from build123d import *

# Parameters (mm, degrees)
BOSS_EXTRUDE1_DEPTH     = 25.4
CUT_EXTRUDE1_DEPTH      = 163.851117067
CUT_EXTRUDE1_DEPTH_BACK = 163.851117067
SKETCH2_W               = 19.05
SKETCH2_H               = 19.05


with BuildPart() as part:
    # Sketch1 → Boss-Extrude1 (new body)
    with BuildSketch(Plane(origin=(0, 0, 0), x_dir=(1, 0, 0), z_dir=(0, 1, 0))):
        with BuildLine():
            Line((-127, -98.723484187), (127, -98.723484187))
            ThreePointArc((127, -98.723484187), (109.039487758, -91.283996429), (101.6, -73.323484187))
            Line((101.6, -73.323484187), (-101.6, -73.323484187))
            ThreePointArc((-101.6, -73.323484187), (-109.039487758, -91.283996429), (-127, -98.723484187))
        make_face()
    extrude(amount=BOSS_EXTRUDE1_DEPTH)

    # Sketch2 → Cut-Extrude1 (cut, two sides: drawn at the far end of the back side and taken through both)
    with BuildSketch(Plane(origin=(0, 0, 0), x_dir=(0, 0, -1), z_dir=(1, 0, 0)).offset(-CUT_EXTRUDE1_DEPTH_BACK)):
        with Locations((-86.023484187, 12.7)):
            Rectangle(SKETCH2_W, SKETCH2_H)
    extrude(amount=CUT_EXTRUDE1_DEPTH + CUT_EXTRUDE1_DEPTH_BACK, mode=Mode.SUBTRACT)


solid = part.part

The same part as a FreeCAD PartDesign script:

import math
import FreeCAD as App
import Part
import Sketcher

V = App.Vector
Q = App.Units.Quantity


def add_polygon(sketch, points):
    """Adds a closed chain of lines whose ends are joined by coincident constraints."""
    first, n = sketch.GeometryCount, len(points)
    for a, b in zip(points, points[1:] + points[:1]):
        sketch.addGeometry(Part.LineSegment(App.Vector(*a, 0), App.Vector(*b, 0)), False)
    for i in range(n):
        sketch.addConstraint(Sketcher.Constraint("Coincident", first + i, 2, first + (i + 1) % n, 1))

doc = App.newDocument("Part")
body = doc.addObject("PartDesign::Body", "Body")

sketch1 = body.newObject("Sketcher::SketchObject", "Sketch")
sketch1.AttachmentSupport = (doc.getObject("XZ_Plane"), [""])
sketch1.MapMode = "FlatFace"
sketch1.addGeometry([
    Part.LineSegment(V(-127, 99, 0), V(127, 99, 0)),
    Part.ArcOfCircle(Part.Circle(V(127, 73, 0), V(0, 0, 1), 25), math.radians(90), math.radians(180)),
    Part.LineSegment(V(102, 73, 0), V(-102, 73, 0)),
    Part.ArcOfCircle(Part.Circle(V(-127, 73, 0), V(0, 0, 1), 25), math.radians(0), math.radians(90)),
], False)
sketch1.addConstraint([
    Sketcher.Constraint("Tangent", 0, 2, 1, 1),
    Sketcher.Constraint("Coincident", 1, 2, 2, 1),
    Sketcher.Constraint("Coincident", 2, 2, 3, 1),
    Sketcher.Constraint("Tangent", 3, 2, 0, 1),
    Sketcher.Constraint("Horizontal", 0),
    Sketcher.Constraint("Horizontal", 2),
    Sketcher.Constraint("Equal", 1, 3),
    Sketcher.Constraint("Horizontal", 3, 3, 1, 2),
    Sketcher.Constraint("Radius", 1, Q("1 in")),
    Sketcher.Constraint("DistanceX", 0, 1, 0, 2, Q("10 in")),
    Sketcher.Constraint("DistanceX", -1, 1, 1, 3, Q("5 in")),
    Sketcher.Constraint("DistanceY", -1, 1, 1, 3, 73.323484),
])
pad1 = body.newObject("PartDesign::Pad", "Pad")
pad1.Profile = sketch1
pad1.Length = Q("1 in")
pad1.Reversed = True

sketch2 = body.newObject("Sketcher::SketchObject", "Sketch001")
sketch2.AttachmentSupport = (doc.getObject("YZ_Plane"), [""])
sketch2.MapMode = "FlatFace"
add_polygon(sketch2, [(22, 96), (3, 96), (3, 76), (22, 76)])
sketch2.addConstraint([
    Sketcher.Constraint("Horizontal", 0),
    Sketcher.Constraint("Vertical", 1),
    Sketcher.Constraint("Horizontal", 2),
    Sketcher.Constraint("Vertical", 3),
    Sketcher.Constraint("Equal", 2, 1),
    Sketcher.Constraint("DistanceX", 0, 2, 0, 1, Q("0.75 in")),
    Sketcher.Constraint("DistanceX", -1, 1, 0, 2, Q("0.125 in")),
    Sketcher.Constraint("DistanceY", -1, 1, 0, 2, 95.548484),
])
pocket1 = body.newObject("PartDesign::Pocket", "Pocket")
pocket1.Profile = sketch2
pocket1.Type = "ThroughAll"
pocket1.Midplane = True

doc.recompute()
